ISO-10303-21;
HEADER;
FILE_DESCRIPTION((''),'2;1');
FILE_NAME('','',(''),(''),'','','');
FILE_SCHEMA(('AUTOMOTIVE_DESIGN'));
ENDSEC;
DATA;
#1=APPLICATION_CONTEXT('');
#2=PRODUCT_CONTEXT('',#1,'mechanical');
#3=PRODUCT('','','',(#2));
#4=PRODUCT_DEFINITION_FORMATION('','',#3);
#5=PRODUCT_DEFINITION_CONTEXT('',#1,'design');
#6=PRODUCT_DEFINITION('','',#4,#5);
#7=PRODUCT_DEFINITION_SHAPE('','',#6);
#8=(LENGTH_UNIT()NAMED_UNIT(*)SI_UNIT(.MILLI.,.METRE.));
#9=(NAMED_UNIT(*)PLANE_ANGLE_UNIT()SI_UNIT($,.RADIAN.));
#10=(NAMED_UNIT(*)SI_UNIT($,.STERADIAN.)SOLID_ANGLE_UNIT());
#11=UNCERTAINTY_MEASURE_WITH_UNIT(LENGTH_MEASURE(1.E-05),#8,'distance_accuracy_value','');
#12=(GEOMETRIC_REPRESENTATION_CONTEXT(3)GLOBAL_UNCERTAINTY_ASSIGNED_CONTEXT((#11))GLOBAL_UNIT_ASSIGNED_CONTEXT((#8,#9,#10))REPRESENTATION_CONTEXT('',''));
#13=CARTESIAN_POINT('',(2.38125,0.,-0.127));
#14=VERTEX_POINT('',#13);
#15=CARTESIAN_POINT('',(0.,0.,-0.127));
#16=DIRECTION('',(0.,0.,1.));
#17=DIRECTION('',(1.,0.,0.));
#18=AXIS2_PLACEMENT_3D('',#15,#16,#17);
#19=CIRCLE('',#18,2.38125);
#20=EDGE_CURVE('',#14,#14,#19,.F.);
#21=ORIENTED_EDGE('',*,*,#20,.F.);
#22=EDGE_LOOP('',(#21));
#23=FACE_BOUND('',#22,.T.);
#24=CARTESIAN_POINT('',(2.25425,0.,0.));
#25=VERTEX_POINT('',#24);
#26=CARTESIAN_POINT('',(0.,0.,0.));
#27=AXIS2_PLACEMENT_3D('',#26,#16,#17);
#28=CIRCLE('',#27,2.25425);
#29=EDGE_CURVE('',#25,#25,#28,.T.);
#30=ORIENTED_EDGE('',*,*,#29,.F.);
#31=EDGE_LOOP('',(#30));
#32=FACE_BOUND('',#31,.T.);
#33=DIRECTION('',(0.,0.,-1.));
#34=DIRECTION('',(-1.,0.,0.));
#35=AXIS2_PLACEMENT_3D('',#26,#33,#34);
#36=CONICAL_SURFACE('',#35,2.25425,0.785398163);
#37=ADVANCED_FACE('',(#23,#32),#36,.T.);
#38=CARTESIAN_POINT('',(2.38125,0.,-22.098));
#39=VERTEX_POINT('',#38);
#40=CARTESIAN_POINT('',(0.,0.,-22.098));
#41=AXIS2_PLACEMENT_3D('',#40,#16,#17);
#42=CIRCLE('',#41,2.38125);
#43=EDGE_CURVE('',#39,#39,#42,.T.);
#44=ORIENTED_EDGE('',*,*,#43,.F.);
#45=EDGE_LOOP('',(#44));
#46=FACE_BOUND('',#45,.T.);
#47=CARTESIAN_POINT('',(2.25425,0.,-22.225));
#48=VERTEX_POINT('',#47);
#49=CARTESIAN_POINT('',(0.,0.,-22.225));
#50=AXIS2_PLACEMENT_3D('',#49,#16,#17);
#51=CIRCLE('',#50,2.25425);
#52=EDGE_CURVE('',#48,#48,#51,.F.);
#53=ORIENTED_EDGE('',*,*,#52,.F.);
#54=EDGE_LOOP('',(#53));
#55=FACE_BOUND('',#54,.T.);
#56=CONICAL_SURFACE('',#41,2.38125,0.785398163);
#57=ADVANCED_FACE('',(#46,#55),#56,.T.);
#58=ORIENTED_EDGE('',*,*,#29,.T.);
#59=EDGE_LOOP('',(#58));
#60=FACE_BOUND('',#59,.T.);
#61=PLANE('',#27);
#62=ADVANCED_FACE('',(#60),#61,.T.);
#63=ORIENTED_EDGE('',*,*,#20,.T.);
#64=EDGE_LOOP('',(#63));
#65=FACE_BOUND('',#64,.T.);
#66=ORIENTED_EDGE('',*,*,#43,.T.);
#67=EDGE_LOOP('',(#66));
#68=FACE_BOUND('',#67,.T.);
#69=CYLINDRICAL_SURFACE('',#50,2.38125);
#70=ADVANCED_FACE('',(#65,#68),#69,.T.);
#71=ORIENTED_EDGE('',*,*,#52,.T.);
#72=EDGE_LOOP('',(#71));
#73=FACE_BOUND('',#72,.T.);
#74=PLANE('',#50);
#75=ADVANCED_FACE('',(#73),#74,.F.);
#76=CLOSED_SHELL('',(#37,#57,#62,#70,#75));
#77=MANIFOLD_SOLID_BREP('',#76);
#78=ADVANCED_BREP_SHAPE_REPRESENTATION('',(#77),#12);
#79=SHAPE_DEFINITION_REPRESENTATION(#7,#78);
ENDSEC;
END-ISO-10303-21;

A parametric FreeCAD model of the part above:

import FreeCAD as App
import Part
import Sketcher
Q = App.Units.Quantity


def edges_at(feature, points):
    """Names of the edges that pass closest to the given points."""
    edges = feature.Shape.Edges
    near = lambda p: min(range(len(edges)), key=lambda i: edges[i].distToShape(Part.Vertex(*p))[0])
    return sorted({f"Edge{near(p) + 1}" for p in points})

doc = App.newDocument("Part")
body = doc.addObject("PartDesign::Body", "Body")

sketch1 = body.newObject("Sketcher::SketchObject", "Sketch")
sketch1.AttachmentSupport = (doc.getObject("XY_Plane"), [""])
sketch1.MapMode = "FlatFace"
sketch1.addGeometry(Part.Circle(App.Vector(0, 0, 0), App.Vector(0, 0, 1), 2.4), False)
sketch1.addConstraint(Sketcher.Constraint("Coincident", 0, 3, -1, 1))
sketch1.addConstraint(Sketcher.Constraint("Diameter", 0, Q("0.1875 in")))
pad1 = body.newObject("PartDesign::Pad", "Pad")
pad1.Profile = sketch1
pad1.Length = Q("0.875 in")
pad1.Reversed = True
doc.recompute()

chamfer = body.newObject("PartDesign::Chamfer", "Chamfer")
chamfer.Base = (pad1, edges_at(pad1, [(-2.381, 0, 0), (-2.381, 0, -22.225)]))
chamfer.Size = Q("0.005 in")

doc.recompute()
